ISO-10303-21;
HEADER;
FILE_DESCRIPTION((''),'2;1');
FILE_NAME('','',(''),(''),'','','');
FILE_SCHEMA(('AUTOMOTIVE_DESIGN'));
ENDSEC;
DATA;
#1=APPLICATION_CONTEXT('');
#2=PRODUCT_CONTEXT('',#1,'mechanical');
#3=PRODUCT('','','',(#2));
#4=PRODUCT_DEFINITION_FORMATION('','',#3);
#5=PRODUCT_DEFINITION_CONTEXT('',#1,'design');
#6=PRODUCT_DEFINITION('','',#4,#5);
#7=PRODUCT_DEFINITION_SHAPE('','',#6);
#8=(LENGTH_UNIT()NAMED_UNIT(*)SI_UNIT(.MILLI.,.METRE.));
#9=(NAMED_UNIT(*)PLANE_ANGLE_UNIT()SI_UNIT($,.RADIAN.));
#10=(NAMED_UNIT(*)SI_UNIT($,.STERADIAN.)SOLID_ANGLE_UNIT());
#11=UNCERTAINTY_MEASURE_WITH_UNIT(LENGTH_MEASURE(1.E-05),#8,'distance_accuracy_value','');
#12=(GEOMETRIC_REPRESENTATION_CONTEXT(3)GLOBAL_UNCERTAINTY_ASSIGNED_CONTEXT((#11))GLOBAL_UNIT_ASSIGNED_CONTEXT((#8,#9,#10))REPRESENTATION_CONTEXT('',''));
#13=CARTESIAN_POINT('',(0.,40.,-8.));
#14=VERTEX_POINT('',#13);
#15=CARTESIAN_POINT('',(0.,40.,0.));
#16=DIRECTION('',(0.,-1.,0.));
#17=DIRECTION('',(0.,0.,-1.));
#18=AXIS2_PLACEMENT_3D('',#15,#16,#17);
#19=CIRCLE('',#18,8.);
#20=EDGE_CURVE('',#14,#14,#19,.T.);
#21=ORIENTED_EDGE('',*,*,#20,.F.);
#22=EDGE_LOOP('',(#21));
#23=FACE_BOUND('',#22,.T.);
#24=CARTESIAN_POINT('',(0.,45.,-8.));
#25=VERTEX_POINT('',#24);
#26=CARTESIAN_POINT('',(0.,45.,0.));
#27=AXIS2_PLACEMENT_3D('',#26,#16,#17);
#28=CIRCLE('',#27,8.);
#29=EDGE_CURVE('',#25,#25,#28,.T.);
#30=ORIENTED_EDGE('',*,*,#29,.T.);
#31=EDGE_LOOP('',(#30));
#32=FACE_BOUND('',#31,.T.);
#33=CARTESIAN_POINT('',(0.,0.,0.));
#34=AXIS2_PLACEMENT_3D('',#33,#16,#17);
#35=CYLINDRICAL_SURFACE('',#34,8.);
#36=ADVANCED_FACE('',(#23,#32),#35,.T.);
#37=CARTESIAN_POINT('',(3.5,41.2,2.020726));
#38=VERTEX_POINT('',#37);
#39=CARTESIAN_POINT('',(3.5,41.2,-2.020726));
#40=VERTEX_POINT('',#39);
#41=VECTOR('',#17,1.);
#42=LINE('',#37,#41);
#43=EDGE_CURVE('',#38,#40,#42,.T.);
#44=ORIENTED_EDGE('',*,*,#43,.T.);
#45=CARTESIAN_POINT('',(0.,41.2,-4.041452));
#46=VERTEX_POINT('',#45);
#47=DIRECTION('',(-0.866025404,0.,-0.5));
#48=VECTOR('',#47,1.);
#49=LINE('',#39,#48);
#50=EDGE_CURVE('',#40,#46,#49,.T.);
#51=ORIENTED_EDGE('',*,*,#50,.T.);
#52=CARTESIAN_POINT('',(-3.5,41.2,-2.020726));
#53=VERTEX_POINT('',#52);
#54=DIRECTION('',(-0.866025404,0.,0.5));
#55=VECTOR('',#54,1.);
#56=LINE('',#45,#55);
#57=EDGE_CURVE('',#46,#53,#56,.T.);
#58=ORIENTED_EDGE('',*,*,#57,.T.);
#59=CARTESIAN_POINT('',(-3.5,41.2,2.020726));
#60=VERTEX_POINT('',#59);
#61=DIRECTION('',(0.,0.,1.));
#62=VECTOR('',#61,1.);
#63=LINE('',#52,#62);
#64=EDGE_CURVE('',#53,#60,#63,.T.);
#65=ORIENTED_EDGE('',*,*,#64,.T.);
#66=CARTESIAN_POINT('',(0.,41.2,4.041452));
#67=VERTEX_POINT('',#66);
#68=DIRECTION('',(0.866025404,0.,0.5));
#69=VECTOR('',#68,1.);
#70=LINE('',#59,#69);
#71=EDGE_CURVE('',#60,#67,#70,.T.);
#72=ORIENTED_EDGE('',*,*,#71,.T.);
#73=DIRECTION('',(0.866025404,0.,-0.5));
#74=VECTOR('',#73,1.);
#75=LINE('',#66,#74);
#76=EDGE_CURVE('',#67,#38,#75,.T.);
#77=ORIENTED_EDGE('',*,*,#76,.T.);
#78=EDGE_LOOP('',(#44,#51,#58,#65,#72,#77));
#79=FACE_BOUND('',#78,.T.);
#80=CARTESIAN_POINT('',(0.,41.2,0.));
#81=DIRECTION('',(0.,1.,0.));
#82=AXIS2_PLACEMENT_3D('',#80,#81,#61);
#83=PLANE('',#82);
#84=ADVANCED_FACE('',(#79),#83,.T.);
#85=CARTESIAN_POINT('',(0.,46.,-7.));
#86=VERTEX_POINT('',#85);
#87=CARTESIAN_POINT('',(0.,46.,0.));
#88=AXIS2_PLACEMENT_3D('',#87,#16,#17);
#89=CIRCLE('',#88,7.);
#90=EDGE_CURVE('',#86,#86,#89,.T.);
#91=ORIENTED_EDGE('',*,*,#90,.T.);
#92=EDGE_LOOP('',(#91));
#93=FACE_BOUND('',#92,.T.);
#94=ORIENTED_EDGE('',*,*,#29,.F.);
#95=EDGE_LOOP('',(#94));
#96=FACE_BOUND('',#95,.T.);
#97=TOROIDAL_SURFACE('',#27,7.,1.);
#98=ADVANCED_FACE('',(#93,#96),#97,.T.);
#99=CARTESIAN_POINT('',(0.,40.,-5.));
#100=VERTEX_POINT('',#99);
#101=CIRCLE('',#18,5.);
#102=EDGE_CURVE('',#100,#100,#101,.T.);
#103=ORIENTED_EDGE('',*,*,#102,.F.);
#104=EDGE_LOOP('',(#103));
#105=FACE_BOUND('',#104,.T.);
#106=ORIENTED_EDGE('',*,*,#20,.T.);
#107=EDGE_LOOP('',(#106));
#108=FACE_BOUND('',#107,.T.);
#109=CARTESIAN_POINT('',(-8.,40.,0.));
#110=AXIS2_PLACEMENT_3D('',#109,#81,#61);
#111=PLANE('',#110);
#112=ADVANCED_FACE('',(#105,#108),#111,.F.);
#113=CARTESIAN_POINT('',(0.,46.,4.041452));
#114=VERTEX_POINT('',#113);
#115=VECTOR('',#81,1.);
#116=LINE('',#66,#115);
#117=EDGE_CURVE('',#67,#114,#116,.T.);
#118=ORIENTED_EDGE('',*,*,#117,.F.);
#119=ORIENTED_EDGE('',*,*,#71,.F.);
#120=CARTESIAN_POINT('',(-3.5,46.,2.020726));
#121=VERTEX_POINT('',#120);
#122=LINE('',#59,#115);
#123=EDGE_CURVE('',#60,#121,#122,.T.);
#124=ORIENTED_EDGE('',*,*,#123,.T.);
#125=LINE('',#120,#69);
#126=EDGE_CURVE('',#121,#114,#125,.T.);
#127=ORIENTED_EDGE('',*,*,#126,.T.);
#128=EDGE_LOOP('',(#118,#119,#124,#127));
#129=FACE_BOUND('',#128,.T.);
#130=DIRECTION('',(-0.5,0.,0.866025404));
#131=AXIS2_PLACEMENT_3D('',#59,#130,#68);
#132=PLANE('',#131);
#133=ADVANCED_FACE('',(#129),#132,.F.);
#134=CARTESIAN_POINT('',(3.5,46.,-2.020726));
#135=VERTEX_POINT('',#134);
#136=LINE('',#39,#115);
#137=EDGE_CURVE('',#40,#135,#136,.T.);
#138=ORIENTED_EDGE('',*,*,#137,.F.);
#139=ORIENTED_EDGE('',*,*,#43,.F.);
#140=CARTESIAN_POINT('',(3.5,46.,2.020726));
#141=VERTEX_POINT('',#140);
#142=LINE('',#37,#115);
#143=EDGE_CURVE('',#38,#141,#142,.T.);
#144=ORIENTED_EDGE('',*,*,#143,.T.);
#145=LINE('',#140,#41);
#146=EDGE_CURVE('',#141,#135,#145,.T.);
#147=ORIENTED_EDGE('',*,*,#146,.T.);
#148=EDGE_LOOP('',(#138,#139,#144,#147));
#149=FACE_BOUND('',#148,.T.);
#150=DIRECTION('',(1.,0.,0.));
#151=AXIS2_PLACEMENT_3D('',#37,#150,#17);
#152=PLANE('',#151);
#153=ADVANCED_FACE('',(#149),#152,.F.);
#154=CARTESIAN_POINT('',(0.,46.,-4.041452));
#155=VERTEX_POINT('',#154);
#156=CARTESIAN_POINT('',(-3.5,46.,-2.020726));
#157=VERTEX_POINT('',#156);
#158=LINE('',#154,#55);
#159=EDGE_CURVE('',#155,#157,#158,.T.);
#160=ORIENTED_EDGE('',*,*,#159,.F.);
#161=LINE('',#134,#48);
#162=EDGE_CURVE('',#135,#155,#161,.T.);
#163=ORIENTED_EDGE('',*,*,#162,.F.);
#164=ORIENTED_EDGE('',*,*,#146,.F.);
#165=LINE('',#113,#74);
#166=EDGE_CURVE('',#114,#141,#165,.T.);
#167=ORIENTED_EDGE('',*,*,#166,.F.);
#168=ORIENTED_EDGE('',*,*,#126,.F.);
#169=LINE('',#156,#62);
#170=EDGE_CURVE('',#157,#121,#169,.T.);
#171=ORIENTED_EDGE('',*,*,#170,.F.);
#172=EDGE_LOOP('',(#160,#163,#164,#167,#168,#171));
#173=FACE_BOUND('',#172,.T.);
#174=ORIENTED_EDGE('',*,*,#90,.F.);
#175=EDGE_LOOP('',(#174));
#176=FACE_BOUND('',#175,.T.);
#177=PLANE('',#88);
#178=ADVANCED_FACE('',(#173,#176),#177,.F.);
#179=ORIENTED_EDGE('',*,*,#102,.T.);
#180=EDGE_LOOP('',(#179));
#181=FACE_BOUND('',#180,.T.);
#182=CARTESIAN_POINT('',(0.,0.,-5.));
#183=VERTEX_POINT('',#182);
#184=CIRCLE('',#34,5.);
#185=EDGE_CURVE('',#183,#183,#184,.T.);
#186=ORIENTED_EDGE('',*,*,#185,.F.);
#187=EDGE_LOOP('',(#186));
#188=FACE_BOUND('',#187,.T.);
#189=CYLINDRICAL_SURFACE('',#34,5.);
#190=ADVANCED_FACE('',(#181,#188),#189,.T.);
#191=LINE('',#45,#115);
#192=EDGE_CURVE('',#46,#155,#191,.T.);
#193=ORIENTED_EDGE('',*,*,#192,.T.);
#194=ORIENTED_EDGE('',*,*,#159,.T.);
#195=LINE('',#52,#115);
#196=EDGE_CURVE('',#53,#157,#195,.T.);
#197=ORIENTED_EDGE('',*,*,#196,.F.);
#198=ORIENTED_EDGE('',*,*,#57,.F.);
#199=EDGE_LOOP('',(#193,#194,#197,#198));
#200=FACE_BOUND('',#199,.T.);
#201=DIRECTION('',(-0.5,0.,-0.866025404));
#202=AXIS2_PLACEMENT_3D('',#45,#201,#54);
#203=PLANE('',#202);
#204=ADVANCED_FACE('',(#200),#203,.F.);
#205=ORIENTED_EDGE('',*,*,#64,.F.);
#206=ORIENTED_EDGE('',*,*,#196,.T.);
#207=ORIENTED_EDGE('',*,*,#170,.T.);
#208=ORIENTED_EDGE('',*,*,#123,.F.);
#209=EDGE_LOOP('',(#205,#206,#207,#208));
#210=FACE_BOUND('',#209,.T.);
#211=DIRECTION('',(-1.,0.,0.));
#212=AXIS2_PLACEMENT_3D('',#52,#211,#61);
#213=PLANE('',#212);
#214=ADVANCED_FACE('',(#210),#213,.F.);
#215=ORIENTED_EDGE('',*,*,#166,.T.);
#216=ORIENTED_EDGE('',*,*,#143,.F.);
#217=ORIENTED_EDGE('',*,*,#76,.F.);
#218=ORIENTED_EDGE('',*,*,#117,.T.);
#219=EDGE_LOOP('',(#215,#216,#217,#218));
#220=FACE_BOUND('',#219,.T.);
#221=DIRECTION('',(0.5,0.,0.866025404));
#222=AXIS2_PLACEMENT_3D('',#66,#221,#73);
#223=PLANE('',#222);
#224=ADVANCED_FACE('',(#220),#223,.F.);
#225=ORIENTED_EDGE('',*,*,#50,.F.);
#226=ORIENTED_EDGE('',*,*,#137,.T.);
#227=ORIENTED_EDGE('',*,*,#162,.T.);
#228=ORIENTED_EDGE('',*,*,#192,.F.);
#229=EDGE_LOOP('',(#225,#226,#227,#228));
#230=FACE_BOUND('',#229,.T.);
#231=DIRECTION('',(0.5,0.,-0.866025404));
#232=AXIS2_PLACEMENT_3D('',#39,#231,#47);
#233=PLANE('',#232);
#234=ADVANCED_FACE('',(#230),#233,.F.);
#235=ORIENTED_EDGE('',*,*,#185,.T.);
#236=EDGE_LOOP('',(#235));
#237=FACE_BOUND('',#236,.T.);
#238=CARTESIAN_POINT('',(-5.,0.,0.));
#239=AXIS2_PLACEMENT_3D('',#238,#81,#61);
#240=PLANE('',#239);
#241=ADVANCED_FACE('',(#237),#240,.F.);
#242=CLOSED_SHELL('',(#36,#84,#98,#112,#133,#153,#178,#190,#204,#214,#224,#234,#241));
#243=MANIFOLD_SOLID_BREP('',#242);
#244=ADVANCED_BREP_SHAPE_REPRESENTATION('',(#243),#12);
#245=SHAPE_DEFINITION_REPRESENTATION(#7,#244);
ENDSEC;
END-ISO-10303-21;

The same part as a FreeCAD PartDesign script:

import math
import FreeCAD as App
import Part
import Sketcher

V = App.Vector
Q = App.Units.Quantity

doc = App.newDocument("Part")
body = doc.addObject("PartDesign::Body", "Body")

sketch1 = body.newObject("Sketcher::SketchObject", "Sketch")
sketch1.AttachmentSupport = (doc.getObject("XY_Plane"), [""])
sketch1.MapMode = "FlatFace"
sketch1.addGeometry([
    Part.LineSegment(V(0, 46, 0), V(-7, 46, 0)),
    Part.ArcOfCircle(Part.Circle(V(-7, 45, 0), V(0, 0, 1), 1), math.radians(90), math.radians(180)),
    Part.LineSegment(V(-8, 45, 0), V(-8, 40, 0)),
    Part.LineSegment(V(-8, 40, 0), V(-5, 40, 0)),
    Part.LineSegment(V(-5, 40, 0), V(-5, 0, 0)),
    Part.LineSegment(V(-5, 0, 0), V(0, 0, 0)),
    Part.LineSegment(V(0, 0, 0), V(0, 46, 0)),
], False)
sketch1.addConstraint([
    Sketcher.Constraint("Tangent", 0, 2, 1, 1),
    Sketcher.Constraint("Tangent", 1, 2, 2, 1),
    Sketcher.Constraint("Coincident", 2, 2, 3, 1),
    Sketcher.Constraint("Coincident", 3, 2, 4, 1),
    Sketcher.Constraint("Coincident", 4, 2, 5, 1),
    Sketcher.Constraint("Coincident", 5, 2, 6, 1),
    Sketcher.Constraint("Coincident", 6, 2, 0, 1),
    Sketcher.Constraint("Horizontal", 0),
    Sketcher.Constraint("Vertical", 2),
    Sketcher.Constraint("Horizontal", 3),
    Sketcher.Constraint("Vertical", 4),
    Sketcher.Constraint("Horizontal", 5),
    Sketcher.Constraint("Vertical", 6),
    Sketcher.Constraint("Coincident", 5, 2, -1, 1),
    Sketcher.Constraint("Equal", 5, 2),
    Sketcher.Constraint("Radius", 1, 1.0),
    Sketcher.Constraint("DistanceX", 0, 2, 0, 1, 7.0),
    Sketcher.Constraint("DistanceX", 3, 1, 3, 2, 3.0),
    Sketcher.Constraint("DistanceY", 4, 2, 4, 1, 40.0),
])
revolution = body.newObject("PartDesign::Revolution", "Revolution")
revolution.Profile = sketch1
revolution.ReferenceAxis = (sketch1, ["V_Axis"])
revolution.Angle = 360

sketch2 = body.newObject("Sketcher::SketchObject", "Sketch001")
sketch2.AttachmentSupport = (doc.getObject("XZ_Plane"), [""])
sketch2.MapMode = "FlatFace"
sketch2.AttachmentOffset = App.Placement(V(0, 0, -46), App.Rotation())
sketch2.addGeometry([
    Part.LineSegment(V(0, -4, 0), V(-3.5, -2, 0)),
    Part.LineSegment(V(-3.5, -2, 0), V(-3.5, 2, 0)),
    Part.LineSegment(V(-3.5, 2, 0), V(0, 4, 0)),
    Part.LineSegment(V(0, 4, 0), V(3.5, 2, 0)),
    Part.LineSegment(V(3.5, 2, 0), V(3.5, -2, 0)),
    Part.LineSegment(V(3.5, -2, 0), V(0, -4, 0)),
], False)
sketch2.addConstraint([
    Sketcher.Constraint("Coincident", 0, 2, 1, 1),
    Sketcher.Constraint("Coincident", 1, 2, 2, 1),
    Sketcher.Constraint("Coincident", 2, 2, 3, 1),
    Sketcher.Constraint("Coincident", 3, 2, 4, 1),
    Sketcher.Constraint("Coincident", 4, 2, 5, 1),
    Sketcher.Constraint("Coincident", 5, 2, 0, 1),
    Sketcher.Constraint("Vertical", 1),
    Sketcher.Constraint("Vertical", 4),
    Sketcher.Constraint("Symmetric", 0, 2, 3, 2, -1, 1),
    Sketcher.Constraint("Symmetric", 2, 2, 5, 2, -1, 1),
    Sketcher.Constraint("PointOnObject", 2, 2, -2),
    Sketcher.Constraint("Parallel", 2, 5),
    Sketcher.Constraint("Horizontal", 1, 2, 3, 2),
    Sketcher.Constraint("Angle", 0, Q("150 deg")),
    Sketcher.Constraint("DistanceX", 1, 2, 3, 2, 7.0),
    Sketcher.Constraint("DistanceY", 1, 1, 1, 2, 4.041452),
])
pocket1 = body.newObject("PartDesign::Pocket", "Pocket")
pocket1.Profile = sketch2
pocket1.Length = 4.8
pocket1.Reversed = True

doc.recompute()
